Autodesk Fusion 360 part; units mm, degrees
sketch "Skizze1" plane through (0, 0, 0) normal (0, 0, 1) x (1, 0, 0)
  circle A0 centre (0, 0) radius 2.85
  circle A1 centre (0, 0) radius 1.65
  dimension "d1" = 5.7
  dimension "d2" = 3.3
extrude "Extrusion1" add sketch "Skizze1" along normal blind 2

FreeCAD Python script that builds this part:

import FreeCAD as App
import Part
import Sketcher
Q = App.Units.Quantity

doc = App.newDocument("Part")
params = doc.addObject("Spreadsheet::Sheet", "Params")
for row, (alias, value) in enumerate([
    ("sketch1_diameter", "5.7 mm"),
    ("sketch1_diameter2", "3.3 mm"),
    ("pad1_length", "2 mm"),
], start=1):
    params.set(f"A{row}", alias)
    params.set(f"B{row}", "=" + value)
    params.setAlias(f"B{row}", alias)

body = doc.addObject("PartDesign::Body", "Body")

sketch1 = doc.addObject("Sketcher::SketchObject", "Sketch")
body.addObject(sketch1)
sketch1.AttachmentSupport = (doc.XY_Plane, [""])
sketch1.MapMode = "FlatFace"
sketch1.addGeometry([
    Part.Circle(App.Vector(0, 0, 0), App.Vector(0, 0, 1), 2.9),
    Part.Circle(App.Vector(0, 0, 0), App.Vector(0, 0, 1), 1.6),
], False)
sketch1.addConstraint([
    Sketcher.Constraint("Coincident", 0, 3, -1, 1),
    Sketcher.Constraint("Coincident", 1, 3, -1, 1),
    Sketcher.Constraint("Diameter", 0, Q("5.7 mm")),
    Sketcher.Constraint("Diameter", 1, Q("3.3 mm")),
])
sketch1.setExpression("Constraints[2]", "Params.sketch1_diameter")
sketch1.setExpression("Constraints[3]", "Params.sketch1_diameter2")
pad1 = doc.addObject("PartDesign::Pad", "Pad")
body.addObject(pad1)
pad1.Profile = sketch1
pad1.setExpression("Length", "Params.pad1_length")

doc.recompute()
